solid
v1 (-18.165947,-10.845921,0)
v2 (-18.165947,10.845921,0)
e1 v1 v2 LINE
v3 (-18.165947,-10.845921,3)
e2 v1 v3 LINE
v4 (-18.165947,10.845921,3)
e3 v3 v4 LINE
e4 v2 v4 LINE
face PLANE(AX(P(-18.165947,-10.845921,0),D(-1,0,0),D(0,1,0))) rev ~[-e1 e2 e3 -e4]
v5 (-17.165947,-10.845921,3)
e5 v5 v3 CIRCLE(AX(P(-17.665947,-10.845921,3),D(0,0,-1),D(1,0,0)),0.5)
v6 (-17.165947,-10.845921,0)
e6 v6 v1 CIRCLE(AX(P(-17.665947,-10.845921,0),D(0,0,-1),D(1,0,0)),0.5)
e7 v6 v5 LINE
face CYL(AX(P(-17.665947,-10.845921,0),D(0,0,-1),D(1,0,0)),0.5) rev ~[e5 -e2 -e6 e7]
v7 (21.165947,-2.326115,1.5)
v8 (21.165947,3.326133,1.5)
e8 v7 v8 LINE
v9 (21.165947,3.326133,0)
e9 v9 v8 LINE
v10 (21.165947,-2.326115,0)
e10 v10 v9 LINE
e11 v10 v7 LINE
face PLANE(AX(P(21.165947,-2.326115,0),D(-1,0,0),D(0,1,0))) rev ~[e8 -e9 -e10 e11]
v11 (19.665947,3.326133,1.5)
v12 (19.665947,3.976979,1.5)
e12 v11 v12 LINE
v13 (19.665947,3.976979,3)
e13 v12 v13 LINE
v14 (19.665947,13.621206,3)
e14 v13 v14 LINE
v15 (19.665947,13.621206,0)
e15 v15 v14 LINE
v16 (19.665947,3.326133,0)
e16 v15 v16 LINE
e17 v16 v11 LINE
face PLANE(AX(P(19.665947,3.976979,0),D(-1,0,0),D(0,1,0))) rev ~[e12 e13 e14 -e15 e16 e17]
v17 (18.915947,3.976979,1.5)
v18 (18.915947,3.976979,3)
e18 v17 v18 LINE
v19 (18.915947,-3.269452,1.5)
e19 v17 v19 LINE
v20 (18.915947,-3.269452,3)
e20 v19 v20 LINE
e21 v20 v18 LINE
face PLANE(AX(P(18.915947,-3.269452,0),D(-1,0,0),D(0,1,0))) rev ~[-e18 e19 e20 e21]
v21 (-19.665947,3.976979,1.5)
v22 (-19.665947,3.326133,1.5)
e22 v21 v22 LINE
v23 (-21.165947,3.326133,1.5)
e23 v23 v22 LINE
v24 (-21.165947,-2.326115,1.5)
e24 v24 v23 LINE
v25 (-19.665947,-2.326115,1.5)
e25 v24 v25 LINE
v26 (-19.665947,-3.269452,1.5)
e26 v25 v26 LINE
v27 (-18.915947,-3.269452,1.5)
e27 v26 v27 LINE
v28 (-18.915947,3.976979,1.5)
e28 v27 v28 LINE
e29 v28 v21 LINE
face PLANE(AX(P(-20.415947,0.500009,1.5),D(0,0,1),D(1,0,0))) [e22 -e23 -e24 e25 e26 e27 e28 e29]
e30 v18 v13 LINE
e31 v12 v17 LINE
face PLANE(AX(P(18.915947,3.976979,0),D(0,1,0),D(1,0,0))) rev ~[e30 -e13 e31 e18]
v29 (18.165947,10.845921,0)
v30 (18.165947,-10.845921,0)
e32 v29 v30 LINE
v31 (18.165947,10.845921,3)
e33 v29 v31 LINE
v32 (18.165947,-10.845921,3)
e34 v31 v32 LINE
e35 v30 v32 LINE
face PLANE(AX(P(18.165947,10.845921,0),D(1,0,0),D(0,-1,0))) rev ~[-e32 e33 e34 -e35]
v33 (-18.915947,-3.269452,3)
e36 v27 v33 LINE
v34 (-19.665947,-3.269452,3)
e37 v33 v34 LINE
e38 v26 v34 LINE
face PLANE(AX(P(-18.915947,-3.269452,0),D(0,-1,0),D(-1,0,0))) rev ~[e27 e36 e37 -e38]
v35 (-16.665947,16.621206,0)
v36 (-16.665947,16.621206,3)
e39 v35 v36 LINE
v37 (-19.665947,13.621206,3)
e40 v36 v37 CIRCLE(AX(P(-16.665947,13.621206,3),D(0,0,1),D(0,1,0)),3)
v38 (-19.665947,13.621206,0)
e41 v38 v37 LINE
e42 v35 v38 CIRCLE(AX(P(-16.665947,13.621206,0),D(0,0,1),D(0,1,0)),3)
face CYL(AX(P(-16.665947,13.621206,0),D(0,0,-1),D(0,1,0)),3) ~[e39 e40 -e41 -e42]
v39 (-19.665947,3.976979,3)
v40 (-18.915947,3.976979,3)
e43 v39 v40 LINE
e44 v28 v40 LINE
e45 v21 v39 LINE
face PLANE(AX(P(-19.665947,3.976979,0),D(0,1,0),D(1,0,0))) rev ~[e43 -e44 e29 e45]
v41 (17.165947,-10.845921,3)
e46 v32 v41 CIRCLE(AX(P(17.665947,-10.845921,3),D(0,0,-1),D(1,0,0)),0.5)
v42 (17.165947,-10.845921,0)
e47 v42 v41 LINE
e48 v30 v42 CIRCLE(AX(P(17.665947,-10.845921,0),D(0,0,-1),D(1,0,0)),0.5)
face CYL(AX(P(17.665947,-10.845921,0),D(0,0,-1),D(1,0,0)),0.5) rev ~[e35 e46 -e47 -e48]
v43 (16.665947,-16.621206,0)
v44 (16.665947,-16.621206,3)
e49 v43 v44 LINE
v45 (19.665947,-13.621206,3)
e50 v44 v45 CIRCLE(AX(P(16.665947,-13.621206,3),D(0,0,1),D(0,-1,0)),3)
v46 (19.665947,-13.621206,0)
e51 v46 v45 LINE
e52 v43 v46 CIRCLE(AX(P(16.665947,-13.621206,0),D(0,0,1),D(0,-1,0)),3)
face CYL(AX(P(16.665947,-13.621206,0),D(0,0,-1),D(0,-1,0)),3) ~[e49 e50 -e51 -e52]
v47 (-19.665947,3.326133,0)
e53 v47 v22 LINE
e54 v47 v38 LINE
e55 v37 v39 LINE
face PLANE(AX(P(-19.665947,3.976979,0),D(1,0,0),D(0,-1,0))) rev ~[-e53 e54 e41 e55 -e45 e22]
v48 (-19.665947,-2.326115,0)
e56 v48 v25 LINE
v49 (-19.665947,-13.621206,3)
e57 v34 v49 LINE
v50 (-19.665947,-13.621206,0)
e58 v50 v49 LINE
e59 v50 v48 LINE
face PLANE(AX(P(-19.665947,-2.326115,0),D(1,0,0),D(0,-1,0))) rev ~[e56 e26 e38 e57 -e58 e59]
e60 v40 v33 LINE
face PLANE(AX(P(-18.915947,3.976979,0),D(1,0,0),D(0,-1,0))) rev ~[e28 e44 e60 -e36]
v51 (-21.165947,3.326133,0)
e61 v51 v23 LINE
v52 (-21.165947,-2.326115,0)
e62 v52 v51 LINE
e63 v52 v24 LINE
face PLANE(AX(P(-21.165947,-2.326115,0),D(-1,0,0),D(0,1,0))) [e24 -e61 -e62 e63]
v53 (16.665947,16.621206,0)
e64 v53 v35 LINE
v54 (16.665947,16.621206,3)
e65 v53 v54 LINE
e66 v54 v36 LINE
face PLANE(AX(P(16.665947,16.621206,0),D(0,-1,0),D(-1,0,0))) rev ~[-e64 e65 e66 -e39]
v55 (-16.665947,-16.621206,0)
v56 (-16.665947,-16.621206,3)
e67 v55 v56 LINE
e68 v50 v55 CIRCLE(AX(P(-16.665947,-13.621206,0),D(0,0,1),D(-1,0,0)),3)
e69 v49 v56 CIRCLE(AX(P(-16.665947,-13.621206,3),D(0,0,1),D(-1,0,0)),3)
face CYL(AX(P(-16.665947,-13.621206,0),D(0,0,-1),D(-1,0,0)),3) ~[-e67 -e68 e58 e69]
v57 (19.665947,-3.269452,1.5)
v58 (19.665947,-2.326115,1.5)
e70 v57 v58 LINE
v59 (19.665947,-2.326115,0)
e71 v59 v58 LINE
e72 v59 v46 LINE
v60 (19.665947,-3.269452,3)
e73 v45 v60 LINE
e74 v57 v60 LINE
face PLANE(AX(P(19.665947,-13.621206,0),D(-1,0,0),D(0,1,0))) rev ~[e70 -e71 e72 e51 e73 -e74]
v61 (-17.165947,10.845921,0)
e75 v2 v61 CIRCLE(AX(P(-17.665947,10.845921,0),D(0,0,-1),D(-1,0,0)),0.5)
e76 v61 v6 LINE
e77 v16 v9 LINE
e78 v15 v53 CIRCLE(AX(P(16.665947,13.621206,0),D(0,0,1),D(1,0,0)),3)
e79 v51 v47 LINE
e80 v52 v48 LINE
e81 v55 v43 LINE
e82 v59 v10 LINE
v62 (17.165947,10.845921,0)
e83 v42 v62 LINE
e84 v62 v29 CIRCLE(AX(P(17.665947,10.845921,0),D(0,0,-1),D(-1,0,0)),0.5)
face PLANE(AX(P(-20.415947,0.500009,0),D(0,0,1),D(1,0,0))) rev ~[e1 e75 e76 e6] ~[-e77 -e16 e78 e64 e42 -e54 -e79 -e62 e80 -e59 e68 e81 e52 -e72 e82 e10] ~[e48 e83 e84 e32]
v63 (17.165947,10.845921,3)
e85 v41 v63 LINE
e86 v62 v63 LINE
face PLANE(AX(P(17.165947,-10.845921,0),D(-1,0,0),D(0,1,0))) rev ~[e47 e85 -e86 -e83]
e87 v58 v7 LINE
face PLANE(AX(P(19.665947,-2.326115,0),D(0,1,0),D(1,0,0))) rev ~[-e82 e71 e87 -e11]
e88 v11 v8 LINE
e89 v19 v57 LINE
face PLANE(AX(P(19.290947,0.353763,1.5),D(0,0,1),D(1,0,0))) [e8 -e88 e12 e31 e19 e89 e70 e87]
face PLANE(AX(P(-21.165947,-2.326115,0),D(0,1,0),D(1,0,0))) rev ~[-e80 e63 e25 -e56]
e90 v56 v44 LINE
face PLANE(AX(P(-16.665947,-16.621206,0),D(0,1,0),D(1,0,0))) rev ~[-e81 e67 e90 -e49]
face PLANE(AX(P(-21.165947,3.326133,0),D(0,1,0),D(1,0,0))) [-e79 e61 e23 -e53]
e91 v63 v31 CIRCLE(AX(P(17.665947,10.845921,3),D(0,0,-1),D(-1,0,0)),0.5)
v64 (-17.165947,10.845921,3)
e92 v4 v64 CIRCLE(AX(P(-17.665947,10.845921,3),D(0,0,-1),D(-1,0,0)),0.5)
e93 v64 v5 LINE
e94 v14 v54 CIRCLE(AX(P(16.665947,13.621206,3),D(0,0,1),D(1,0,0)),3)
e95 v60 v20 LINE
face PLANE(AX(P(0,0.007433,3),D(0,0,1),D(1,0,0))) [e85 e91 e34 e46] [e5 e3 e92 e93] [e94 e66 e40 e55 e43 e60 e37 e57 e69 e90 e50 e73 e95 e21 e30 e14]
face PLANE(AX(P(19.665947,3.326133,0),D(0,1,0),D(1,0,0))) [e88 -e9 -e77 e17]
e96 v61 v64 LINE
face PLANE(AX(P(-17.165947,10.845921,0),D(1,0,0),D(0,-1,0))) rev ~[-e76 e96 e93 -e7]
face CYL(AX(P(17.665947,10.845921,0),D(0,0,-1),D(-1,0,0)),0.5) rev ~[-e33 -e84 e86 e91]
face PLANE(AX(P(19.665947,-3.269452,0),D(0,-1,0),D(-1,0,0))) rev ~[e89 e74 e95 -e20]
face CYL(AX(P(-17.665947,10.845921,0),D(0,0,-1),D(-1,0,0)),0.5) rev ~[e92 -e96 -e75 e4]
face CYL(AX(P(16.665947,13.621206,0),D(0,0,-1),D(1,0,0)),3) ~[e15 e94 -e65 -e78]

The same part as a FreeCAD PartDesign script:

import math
import FreeCAD as App
import Part
import Sketcher

V = App.Vector


def add_polygon(sketch, points):
    """Adds a closed chain of lines whose ends are joined by coincident constraints."""
    first, n = sketch.GeometryCount, len(points)
    for a, b in zip(points, points[1:] + points[:1]):
        sketch.addGeometry(Part.LineSegment(App.Vector(*a, 0), App.Vector(*b, 0)), False)
    for i in range(n):
        sketch.addConstraint(Sketcher.Constraint("Coincident", first + i, 2, first + (i + 1) % n, 1))

doc = App.newDocument("Part")
body = doc.addObject("PartDesign::Body", "Body")

# Sketch on XY plane
sketch1 = body.newObject("Sketcher::SketchObject", "Sketch")
sketch1.AttachmentSupport = (doc.getObject("XY_Plane"), [""])
sketch1.MapMode = "FlatFace"
sketch1.addGeometry(Part.LineSegment(V(16.7, 16.6, 0), V(-16.7, 16.6, 0)), False)
sketch1.addGeometry(Part.ArcOfCircle(Part.Circle(V(-16.7, 13.6, 0), V(0, 0, 1), 3), math.radians(90), math.radians(180)), False)
sketch1.addGeometry(Part.LineSegment(V(-19.7, 13.6, 0), V(-19.7, 4, 0)), False)
sketch1.addGeometry(Part.LineSegment(V(-19.7, 4, 0), V(-18.9, 4, 0)), False)
sketch1.addGeometry(Part.LineSegment(V(-18.9, 4, 0), V(-18.9, -3.3, 0)), False)
sketch1.addGeometry(Part.LineSegment(V(-18.9, -3.3, 0), V(-19.7, -3.3, 0)), False)
sketch1.addGeometry(Part.LineSegment(V(-19.7, -3.3, 0), V(-19.7, -13.6, 0)), False)
sketch1.addGeometry(Part.ArcOfCircle(Part.Circle(V(-16.7, -13.6, 0), V(0, 0, 1), 3), math.radians(180), math.radians(270)), False)
sketch1.addGeometry(Part.LineSegment(V(-16.7, -16.6, 0), V(16.7, -16.6, 0)), False)
sketch1.addGeometry(Part.ArcOfCircle(Part.Circle(V(16.7, -13.6, 0), V(0, 0, 1), 3), math.radians(-90), math.radians(0)), False)
sketch1.addGeometry(Part.LineSegment(V(19.7, -13.6, 0), V(19.7, -3.3, 0)), False)
sketch1.addGeometry(Part.LineSegment(V(19.7, -3.3, 0), V(18.9, -3.3, 0)), False)
sketch1.addGeometry(Part.LineSegment(V(18.9, -3.3, 0), V(18.9, 4, 0)), False)
sketch1.addGeometry(Part.LineSegment(V(18.9, 4, 0), V(19.7, 4, 0)), False)
sketch1.addGeometry(Part.LineSegment(V(19.7, 4, 0), V(19.7, 13.6, 0)), False)
sketch1.addGeometry(Part.ArcOfCircle(Part.Circle(V(16.7, 13.6, 0), V(0, 0, 1), 3), math.radians(0), math.radians(90)), False)
sketch1.addGeometry(Part.ArcOfCircle(Part.Circle(V(-17.7, -10.8, 0), V(0, 0, 1), 0.5), math.radians(180), math.radians(360)), False)
sketch1.addGeometry(Part.LineSegment(V(-18.2, -10.8, 0), V(-18.2, 10.8, 0)), False)
sketch1.addGeometry(Part.ArcOfCircle(Part.Circle(V(-17.7, 10.8, 0), V(0, 0, 1), 0.5), math.radians(0), math.radians(180)), False)
sketch1.addGeometry(Part.LineSegment(V(-17.2, 10.8, 0), V(-17.2, -10.8, 0)), False)
sketch1.addGeometry(Part.LineSegment(V(17.2, -10.8, 0), V(17.2, 10.8, 0)), False)
sketch1.addGeometry(Part.ArcOfCircle(Part.Circle(V(17.7, 10.8, 0), V(0, 0, 1), 0.5), math.radians(0), math.radians(180)), False)
sketch1.addGeometry(Part.LineSegment(V(18.2, 10.8, 0), V(18.2, -10.8, 0)), False)
sketch1.addGeometry(Part.ArcOfCircle(Part.Circle(V(17.7, -10.8, 0), V(0, 0, 1), 0.5), math.radians(180), math.radians(360)), False)
sketch1.addConstraint(Sketcher.Constraint("Tangent", 0, 2, 1, 1))
sketch1.addConstraint(Sketcher.Constraint("Tangent", 1, 2, 2, 1))
sketch1.addConstraint(Sketcher.Constraint("Coincident", 2, 2, 3, 1))
sketch1.addConstraint(Sketcher.Constraint("Coincident", 3, 2, 4, 1))
sketch1.addConstraint(Sketcher.Constraint("Coincident", 4, 2, 5, 1))
sketch1.addConstraint(Sketcher.Constraint("Coincident", 5, 2, 6, 1))
sketch1.addConstraint(Sketcher.Constraint("Tangent", 6, 2, 7, 1))
sketch1.addConstraint(Sketcher.Constraint("Tangent", 7, 2, 8, 1))
sketch1.addConstraint(Sketcher.Constraint("Tangent", 8, 2, 9, 1))
sketch1.addConstraint(Sketcher.Constraint("Tangent", 9, 2, 10, 1))
sketch1.addConstraint(Sketcher.Constraint("Coincident", 10, 2, 11, 1))
sketch1.addConstraint(Sketcher.Constraint("Coincident", 11, 2, 12, 1))
sketch1.addConstraint(Sketcher.Constraint("Coincident", 12, 2, 13, 1))
sketch1.addConstraint(Sketcher.Constraint("Coincident", 13, 2, 14, 1))
sketch1.addConstraint(Sketcher.Constraint("Tangent", 14, 2, 15, 1))
sketch1.addConstraint(Sketcher.Constraint("Tangent", 15, 2, 0, 1))
sketch1.addConstraint(Sketcher.Constraint("Tangent", 16, 1, 17, 1))
sketch1.addConstraint(Sketcher.Constraint("Tangent", 17, 2, 18, 2))
sketch1.addConstraint(Sketcher.Constraint("Tangent", 18, 1, 19, 1))
sketch1.addConstraint(Sketcher.Constraint("Tangent", 19, 2, 16, 2))
sketch1.addConstraint(Sketcher.Constraint("Tangent", 20, 2, 21, 2))
sketch1.addConstraint(Sketcher.Constraint("Tangent", 21, 1, 22, 1))
sketch1.addConstraint(Sketcher.Constraint("Tangent", 22, 2, 23, 2))
sketch1.addConstraint(Sketcher.Constraint("Tangent", 23, 1, 20, 1))
sketch1.addConstraint(Sketcher.Constraint("Horizontal", 0))
sketch1.addConstraint(Sketcher.Constraint("Vertical", 2))
sketch1.addConstraint(Sketcher.Constraint("Horizontal", 3))
sketch1.addConstraint(Sketcher.Constraint("Vertical", 4))
sketch1.addConstraint(Sketcher.Constraint("Horizontal", 5))
sketch1.addConstraint(Sketcher.Constraint("Vertical", 6))
sketch1.addConstraint(Sketcher.Constraint("Horizontal", 8))
sketch1.addConstraint(Sketcher.Constraint("Vertical", 10))
sketch1.addConstraint(Sketcher.Constraint("Horizontal", 11))
sketch1.addConstraint(Sketcher.Constraint("Vertical", 12))
sketch1.addConstraint(Sketcher.Constraint("Horizontal", 13))
sketch1.addConstraint(Sketcher.Constraint("Vertical", 14))
sketch1.addConstraint(Sketcher.Constraint("Vertical", 17))
sketch1.addConstraint(Sketcher.Constraint("Vertical", 19))
sketch1.addConstraint(Sketcher.Constraint("Vertical", 20))
sketch1.addConstraint(Sketcher.Constraint("Vertical", 22))
sketch1.addConstraint(Sketcher.Constraint("Equal", 1, 7))
sketch1.addConstraint(Sketcher.Constraint("Equal", 7, 9))
sketch1.addConstraint(Sketcher.Constraint("Equal", 9, 15))
sketch1.addConstraint(Sketcher.Constraint("Equal", 18, 21))
sketch1.addConstraint(Sketcher.Constraint("Symmetric", 1, 3, 9, 3, -1, 1))
sketch1.addConstraint(Sketcher.Constraint("Symmetric", 16, 3, 21, 3, -1, 1))
sketch1.addConstraint(Sketcher.Constraint("Symmetric", 5, 2, 10, 2, -2))
sketch1.addConstraint(Sketcher.Constraint("Symmetric", 3, 2, 12, 2, -2))
sketch1.addConstraint(Sketcher.Constraint("Horizontal", 18, 3, 21, 3))
sketch1.addConstraint(Sketcher.Constraint("Horizontal", 16, 3, 23, 3))
sketch1.addConstraint(Sketcher.Constraint("Vertical", 9, 3, 15, 3))
sketch1.addConstraint(Sketcher.Constraint("Radius", 1, 3.0))
sketch1.addConstraint(Sketcher.Constraint("Radius", 16, 0.5))
sketch1.addConstraint(Sketcher.Constraint("DistanceX", 16, 3, 7, 3, 1.0))
sketch1.addConstraint(Sketcher.Constraint("DistanceX", 3, 1, 3, 2, 0.75))
sketch1.addConstraint(Sketcher.Constraint("DistanceY", 4, 2, 4, 1, 7.246431))
sketch1.addConstraint(Sketcher.Constraint("DistanceY", 16, 3, 2, 2, 14.8229))
sketch1.addConstraint(Sketcher.Constraint("DistanceX", 0, 2, 0, 1, 33.331894))
sketch1.addConstraint(Sketcher.Constraint("DistanceY", 2, 2, 2, 1, 9.644227))
sketch1.addConstraint(Sketcher.Constraint("DistanceY", 6, 2, 6, 1, 10.351754))
pad1 = body.newObject("PartDesign::Pad", "Pad")
pad1.Profile = sketch1
pad1.Length = 3

# Sketch on XY plane
sketch2 = body.newObject("Sketcher::SketchObject", "Sketch001")
sketch2.AttachmentSupport = (doc.getObject("XY_Plane"), [""])
sketch2.MapMode = "FlatFace"
add_polygon(sketch2, [(-21.2, 3.3), (-21.2, -2.3), (-19.7, -2.3), (-19.7, -3.3), (-18.9, -3.3), (-18.9, 4), (-19.7, 4), (-19.7, 3.3)])  # lines 0-7
add_polygon(sketch2, [(19.7, 4), (18.9, 4), (18.9, -3.3), (19.7, -3.3), (19.7, -2.3), (21.2, -2.3), (21.2, 3.3), (19.7, 3.3)])  # lines 8-15
sketch2.addConstraint(Sketcher.Constraint("Vertical", 0))
sketch2.addConstraint(Sketcher.Constraint("Horizontal", 1))
sketch2.addConstraint(Sketcher.Constraint("Vertical", 2))
sketch2.addConstraint(Sketcher.Constraint("Horizontal", 3))
sketch2.addConstraint(Sketcher.Constraint("Vertical", 4))
sketch2.addConstraint(Sketcher.Constraint("Horizontal", 5))
sketch2.addConstraint(Sketcher.Constraint("Vertical", 6))
sketch2.addConstraint(Sketcher.Constraint("Horizontal", 7))
sketch2.addConstraint(Sketcher.Constraint("Horizontal", 8))
sketch2.addConstraint(Sketcher.Constraint("Vertical", 9))
sketch2.addConstraint(Sketcher.Constraint("Horizontal", 10))
sketch2.addConstraint(Sketcher.Constraint("Vertical", 11))
sketch2.addConstraint(Sketcher.Constraint("Horizontal", 12))
sketch2.addConstraint(Sketcher.Constraint("Vertical", 13))
sketch2.addConstraint(Sketcher.Constraint("Horizontal", 14))
sketch2.addConstraint(Sketcher.Constraint("Vertical", 15))
sketch2.addConstraint(Sketcher.Constraint("Symmetric", 4, 2, 8, 2, -2))
sketch2.addConstraint(Sketcher.Constraint("Symmetric", 2, 2, 10, 2, -2))
sketch2.addConstraint(Sketcher.Constraint("Symmetric", 0, 2, 12, 2, -2))
sketch2.addConstraint(Sketcher.Constraint("Symmetric", 6, 2, 14, 2, -2))
sketch2.addConstraint(Sketcher.Constraint("Vertical", 2, 2, 5, 2))
sketch2.addConstraint(Sketcher.Constraint("DistanceX", 1, 1, 1, 2, 1.5))
sketch2.addConstraint(Sketcher.Constraint("DistanceX", 3, 1, 3, 2, 0.75))
sketch2.addConstraint(Sketcher.Constraint("DistanceY", 4, 1, 4, 2, 7.246431))
sketch2.addConstraint(Sketcher.Constraint("DistanceY", 0, 2, 0, 1, 5.652248))
sketch2.addConstraint(Sketcher.Constraint("DistanceY", 2, 2, 2, 1, 0.943337))
sketch2.addConstraint(Sketcher.Constraint("DistanceY", 2, 2, -1, 1, 3.269452))
sketch2.addConstraint(Sketcher.Constraint("DistanceX", 0, 2, -1, 1, 21.165947))
pad2 = body.newObject("PartDesign::Pad", "Pad001")
pad2.Profile = sketch2
pad2.Length = 1.5

doc.recompute()
